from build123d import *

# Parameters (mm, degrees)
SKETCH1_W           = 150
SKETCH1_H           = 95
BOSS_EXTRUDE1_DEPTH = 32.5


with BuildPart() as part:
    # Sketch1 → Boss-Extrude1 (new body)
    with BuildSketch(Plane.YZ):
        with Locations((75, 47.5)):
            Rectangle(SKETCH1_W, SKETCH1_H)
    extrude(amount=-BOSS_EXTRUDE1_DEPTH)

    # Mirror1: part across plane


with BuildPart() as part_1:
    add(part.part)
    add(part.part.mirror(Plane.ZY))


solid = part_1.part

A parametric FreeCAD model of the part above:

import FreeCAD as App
import Part
import Sketcher

V = App.Vector
Q = App.Units.Quantity

doc = App.newDocument("Part")
body = doc.addObject("PartDesign::Body", "Body")

# Sketch on YZ plane
sketch1 = body.newObject("Sketcher::SketchObject", "Sketch")
sketch1.AttachmentSupport = (doc.getObject("YZ_Plane"), [""])
sketch1.MapMode = "FlatFace"
sketch1.addGeometry([
    Part.LineSegment(V(0, 95, 0), V(0, 0, 0)),
    Part.LineSegment(V(0, 0, 0), V(150, 0, 0)),
    Part.LineSegment(V(150, 0, 0), V(150, 95, 0)),
    Part.LineSegment(V(150, 95, 0), V(0, 95, 0)),
], False)
sketch1.addConstraint([
    Sketcher.Constraint("Coincident", 0, 2, 1, 1),
    Sketcher.Constraint("Coincident", 1, 2, 2, 1),
    Sketcher.Constraint("Coincident", 2, 2, 3, 1),
    Sketcher.Constraint("Coincident", 3, 2, 0, 1),
    Sketcher.Constraint("Vertical", 0),
    Sketcher.Constraint("Horizontal", 1),
    Sketcher.Constraint("Vertical", 2),
    Sketcher.Constraint("Horizontal", 3),
    Sketcher.Constraint("Coincident", 0, 2, -1, 1),
    Sketcher.Constraint("DistanceX", 1, 1, 1, 2, Q("150 mm")),
    Sketcher.Constraint("DistanceY", 0, 2, 0, 1, Q("95 mm")),
])
pad1 = body.newObject("PartDesign::Pad", "Pad")
pad1.Profile = sketch1
pad1.Length = 32.5
pad1.Reversed = True
body2 = doc.addObject("PartDesign::Body", "Body001")
doc.recompute()

body2.BaseFeature = body
doc.recompute()

mirroring = doc.addObject("Part::Mirroring", "Mirroring")
mirroring.Source = body
mirroring.Base = V(0, 0, 0)
mirroring.Normal = V(-1, 0, 0)
body3 = doc.addObject("PartDesign::Body", "Body002")
body3.BaseFeature = mirroring
boolean = body2.newObject("PartDesign::Boolean", "Boolean")
boolean.Type = "Fuse"
boolean.addObjects([body3])
doc.recompute()
mirroring.Visibility = False

doc.recompute()
